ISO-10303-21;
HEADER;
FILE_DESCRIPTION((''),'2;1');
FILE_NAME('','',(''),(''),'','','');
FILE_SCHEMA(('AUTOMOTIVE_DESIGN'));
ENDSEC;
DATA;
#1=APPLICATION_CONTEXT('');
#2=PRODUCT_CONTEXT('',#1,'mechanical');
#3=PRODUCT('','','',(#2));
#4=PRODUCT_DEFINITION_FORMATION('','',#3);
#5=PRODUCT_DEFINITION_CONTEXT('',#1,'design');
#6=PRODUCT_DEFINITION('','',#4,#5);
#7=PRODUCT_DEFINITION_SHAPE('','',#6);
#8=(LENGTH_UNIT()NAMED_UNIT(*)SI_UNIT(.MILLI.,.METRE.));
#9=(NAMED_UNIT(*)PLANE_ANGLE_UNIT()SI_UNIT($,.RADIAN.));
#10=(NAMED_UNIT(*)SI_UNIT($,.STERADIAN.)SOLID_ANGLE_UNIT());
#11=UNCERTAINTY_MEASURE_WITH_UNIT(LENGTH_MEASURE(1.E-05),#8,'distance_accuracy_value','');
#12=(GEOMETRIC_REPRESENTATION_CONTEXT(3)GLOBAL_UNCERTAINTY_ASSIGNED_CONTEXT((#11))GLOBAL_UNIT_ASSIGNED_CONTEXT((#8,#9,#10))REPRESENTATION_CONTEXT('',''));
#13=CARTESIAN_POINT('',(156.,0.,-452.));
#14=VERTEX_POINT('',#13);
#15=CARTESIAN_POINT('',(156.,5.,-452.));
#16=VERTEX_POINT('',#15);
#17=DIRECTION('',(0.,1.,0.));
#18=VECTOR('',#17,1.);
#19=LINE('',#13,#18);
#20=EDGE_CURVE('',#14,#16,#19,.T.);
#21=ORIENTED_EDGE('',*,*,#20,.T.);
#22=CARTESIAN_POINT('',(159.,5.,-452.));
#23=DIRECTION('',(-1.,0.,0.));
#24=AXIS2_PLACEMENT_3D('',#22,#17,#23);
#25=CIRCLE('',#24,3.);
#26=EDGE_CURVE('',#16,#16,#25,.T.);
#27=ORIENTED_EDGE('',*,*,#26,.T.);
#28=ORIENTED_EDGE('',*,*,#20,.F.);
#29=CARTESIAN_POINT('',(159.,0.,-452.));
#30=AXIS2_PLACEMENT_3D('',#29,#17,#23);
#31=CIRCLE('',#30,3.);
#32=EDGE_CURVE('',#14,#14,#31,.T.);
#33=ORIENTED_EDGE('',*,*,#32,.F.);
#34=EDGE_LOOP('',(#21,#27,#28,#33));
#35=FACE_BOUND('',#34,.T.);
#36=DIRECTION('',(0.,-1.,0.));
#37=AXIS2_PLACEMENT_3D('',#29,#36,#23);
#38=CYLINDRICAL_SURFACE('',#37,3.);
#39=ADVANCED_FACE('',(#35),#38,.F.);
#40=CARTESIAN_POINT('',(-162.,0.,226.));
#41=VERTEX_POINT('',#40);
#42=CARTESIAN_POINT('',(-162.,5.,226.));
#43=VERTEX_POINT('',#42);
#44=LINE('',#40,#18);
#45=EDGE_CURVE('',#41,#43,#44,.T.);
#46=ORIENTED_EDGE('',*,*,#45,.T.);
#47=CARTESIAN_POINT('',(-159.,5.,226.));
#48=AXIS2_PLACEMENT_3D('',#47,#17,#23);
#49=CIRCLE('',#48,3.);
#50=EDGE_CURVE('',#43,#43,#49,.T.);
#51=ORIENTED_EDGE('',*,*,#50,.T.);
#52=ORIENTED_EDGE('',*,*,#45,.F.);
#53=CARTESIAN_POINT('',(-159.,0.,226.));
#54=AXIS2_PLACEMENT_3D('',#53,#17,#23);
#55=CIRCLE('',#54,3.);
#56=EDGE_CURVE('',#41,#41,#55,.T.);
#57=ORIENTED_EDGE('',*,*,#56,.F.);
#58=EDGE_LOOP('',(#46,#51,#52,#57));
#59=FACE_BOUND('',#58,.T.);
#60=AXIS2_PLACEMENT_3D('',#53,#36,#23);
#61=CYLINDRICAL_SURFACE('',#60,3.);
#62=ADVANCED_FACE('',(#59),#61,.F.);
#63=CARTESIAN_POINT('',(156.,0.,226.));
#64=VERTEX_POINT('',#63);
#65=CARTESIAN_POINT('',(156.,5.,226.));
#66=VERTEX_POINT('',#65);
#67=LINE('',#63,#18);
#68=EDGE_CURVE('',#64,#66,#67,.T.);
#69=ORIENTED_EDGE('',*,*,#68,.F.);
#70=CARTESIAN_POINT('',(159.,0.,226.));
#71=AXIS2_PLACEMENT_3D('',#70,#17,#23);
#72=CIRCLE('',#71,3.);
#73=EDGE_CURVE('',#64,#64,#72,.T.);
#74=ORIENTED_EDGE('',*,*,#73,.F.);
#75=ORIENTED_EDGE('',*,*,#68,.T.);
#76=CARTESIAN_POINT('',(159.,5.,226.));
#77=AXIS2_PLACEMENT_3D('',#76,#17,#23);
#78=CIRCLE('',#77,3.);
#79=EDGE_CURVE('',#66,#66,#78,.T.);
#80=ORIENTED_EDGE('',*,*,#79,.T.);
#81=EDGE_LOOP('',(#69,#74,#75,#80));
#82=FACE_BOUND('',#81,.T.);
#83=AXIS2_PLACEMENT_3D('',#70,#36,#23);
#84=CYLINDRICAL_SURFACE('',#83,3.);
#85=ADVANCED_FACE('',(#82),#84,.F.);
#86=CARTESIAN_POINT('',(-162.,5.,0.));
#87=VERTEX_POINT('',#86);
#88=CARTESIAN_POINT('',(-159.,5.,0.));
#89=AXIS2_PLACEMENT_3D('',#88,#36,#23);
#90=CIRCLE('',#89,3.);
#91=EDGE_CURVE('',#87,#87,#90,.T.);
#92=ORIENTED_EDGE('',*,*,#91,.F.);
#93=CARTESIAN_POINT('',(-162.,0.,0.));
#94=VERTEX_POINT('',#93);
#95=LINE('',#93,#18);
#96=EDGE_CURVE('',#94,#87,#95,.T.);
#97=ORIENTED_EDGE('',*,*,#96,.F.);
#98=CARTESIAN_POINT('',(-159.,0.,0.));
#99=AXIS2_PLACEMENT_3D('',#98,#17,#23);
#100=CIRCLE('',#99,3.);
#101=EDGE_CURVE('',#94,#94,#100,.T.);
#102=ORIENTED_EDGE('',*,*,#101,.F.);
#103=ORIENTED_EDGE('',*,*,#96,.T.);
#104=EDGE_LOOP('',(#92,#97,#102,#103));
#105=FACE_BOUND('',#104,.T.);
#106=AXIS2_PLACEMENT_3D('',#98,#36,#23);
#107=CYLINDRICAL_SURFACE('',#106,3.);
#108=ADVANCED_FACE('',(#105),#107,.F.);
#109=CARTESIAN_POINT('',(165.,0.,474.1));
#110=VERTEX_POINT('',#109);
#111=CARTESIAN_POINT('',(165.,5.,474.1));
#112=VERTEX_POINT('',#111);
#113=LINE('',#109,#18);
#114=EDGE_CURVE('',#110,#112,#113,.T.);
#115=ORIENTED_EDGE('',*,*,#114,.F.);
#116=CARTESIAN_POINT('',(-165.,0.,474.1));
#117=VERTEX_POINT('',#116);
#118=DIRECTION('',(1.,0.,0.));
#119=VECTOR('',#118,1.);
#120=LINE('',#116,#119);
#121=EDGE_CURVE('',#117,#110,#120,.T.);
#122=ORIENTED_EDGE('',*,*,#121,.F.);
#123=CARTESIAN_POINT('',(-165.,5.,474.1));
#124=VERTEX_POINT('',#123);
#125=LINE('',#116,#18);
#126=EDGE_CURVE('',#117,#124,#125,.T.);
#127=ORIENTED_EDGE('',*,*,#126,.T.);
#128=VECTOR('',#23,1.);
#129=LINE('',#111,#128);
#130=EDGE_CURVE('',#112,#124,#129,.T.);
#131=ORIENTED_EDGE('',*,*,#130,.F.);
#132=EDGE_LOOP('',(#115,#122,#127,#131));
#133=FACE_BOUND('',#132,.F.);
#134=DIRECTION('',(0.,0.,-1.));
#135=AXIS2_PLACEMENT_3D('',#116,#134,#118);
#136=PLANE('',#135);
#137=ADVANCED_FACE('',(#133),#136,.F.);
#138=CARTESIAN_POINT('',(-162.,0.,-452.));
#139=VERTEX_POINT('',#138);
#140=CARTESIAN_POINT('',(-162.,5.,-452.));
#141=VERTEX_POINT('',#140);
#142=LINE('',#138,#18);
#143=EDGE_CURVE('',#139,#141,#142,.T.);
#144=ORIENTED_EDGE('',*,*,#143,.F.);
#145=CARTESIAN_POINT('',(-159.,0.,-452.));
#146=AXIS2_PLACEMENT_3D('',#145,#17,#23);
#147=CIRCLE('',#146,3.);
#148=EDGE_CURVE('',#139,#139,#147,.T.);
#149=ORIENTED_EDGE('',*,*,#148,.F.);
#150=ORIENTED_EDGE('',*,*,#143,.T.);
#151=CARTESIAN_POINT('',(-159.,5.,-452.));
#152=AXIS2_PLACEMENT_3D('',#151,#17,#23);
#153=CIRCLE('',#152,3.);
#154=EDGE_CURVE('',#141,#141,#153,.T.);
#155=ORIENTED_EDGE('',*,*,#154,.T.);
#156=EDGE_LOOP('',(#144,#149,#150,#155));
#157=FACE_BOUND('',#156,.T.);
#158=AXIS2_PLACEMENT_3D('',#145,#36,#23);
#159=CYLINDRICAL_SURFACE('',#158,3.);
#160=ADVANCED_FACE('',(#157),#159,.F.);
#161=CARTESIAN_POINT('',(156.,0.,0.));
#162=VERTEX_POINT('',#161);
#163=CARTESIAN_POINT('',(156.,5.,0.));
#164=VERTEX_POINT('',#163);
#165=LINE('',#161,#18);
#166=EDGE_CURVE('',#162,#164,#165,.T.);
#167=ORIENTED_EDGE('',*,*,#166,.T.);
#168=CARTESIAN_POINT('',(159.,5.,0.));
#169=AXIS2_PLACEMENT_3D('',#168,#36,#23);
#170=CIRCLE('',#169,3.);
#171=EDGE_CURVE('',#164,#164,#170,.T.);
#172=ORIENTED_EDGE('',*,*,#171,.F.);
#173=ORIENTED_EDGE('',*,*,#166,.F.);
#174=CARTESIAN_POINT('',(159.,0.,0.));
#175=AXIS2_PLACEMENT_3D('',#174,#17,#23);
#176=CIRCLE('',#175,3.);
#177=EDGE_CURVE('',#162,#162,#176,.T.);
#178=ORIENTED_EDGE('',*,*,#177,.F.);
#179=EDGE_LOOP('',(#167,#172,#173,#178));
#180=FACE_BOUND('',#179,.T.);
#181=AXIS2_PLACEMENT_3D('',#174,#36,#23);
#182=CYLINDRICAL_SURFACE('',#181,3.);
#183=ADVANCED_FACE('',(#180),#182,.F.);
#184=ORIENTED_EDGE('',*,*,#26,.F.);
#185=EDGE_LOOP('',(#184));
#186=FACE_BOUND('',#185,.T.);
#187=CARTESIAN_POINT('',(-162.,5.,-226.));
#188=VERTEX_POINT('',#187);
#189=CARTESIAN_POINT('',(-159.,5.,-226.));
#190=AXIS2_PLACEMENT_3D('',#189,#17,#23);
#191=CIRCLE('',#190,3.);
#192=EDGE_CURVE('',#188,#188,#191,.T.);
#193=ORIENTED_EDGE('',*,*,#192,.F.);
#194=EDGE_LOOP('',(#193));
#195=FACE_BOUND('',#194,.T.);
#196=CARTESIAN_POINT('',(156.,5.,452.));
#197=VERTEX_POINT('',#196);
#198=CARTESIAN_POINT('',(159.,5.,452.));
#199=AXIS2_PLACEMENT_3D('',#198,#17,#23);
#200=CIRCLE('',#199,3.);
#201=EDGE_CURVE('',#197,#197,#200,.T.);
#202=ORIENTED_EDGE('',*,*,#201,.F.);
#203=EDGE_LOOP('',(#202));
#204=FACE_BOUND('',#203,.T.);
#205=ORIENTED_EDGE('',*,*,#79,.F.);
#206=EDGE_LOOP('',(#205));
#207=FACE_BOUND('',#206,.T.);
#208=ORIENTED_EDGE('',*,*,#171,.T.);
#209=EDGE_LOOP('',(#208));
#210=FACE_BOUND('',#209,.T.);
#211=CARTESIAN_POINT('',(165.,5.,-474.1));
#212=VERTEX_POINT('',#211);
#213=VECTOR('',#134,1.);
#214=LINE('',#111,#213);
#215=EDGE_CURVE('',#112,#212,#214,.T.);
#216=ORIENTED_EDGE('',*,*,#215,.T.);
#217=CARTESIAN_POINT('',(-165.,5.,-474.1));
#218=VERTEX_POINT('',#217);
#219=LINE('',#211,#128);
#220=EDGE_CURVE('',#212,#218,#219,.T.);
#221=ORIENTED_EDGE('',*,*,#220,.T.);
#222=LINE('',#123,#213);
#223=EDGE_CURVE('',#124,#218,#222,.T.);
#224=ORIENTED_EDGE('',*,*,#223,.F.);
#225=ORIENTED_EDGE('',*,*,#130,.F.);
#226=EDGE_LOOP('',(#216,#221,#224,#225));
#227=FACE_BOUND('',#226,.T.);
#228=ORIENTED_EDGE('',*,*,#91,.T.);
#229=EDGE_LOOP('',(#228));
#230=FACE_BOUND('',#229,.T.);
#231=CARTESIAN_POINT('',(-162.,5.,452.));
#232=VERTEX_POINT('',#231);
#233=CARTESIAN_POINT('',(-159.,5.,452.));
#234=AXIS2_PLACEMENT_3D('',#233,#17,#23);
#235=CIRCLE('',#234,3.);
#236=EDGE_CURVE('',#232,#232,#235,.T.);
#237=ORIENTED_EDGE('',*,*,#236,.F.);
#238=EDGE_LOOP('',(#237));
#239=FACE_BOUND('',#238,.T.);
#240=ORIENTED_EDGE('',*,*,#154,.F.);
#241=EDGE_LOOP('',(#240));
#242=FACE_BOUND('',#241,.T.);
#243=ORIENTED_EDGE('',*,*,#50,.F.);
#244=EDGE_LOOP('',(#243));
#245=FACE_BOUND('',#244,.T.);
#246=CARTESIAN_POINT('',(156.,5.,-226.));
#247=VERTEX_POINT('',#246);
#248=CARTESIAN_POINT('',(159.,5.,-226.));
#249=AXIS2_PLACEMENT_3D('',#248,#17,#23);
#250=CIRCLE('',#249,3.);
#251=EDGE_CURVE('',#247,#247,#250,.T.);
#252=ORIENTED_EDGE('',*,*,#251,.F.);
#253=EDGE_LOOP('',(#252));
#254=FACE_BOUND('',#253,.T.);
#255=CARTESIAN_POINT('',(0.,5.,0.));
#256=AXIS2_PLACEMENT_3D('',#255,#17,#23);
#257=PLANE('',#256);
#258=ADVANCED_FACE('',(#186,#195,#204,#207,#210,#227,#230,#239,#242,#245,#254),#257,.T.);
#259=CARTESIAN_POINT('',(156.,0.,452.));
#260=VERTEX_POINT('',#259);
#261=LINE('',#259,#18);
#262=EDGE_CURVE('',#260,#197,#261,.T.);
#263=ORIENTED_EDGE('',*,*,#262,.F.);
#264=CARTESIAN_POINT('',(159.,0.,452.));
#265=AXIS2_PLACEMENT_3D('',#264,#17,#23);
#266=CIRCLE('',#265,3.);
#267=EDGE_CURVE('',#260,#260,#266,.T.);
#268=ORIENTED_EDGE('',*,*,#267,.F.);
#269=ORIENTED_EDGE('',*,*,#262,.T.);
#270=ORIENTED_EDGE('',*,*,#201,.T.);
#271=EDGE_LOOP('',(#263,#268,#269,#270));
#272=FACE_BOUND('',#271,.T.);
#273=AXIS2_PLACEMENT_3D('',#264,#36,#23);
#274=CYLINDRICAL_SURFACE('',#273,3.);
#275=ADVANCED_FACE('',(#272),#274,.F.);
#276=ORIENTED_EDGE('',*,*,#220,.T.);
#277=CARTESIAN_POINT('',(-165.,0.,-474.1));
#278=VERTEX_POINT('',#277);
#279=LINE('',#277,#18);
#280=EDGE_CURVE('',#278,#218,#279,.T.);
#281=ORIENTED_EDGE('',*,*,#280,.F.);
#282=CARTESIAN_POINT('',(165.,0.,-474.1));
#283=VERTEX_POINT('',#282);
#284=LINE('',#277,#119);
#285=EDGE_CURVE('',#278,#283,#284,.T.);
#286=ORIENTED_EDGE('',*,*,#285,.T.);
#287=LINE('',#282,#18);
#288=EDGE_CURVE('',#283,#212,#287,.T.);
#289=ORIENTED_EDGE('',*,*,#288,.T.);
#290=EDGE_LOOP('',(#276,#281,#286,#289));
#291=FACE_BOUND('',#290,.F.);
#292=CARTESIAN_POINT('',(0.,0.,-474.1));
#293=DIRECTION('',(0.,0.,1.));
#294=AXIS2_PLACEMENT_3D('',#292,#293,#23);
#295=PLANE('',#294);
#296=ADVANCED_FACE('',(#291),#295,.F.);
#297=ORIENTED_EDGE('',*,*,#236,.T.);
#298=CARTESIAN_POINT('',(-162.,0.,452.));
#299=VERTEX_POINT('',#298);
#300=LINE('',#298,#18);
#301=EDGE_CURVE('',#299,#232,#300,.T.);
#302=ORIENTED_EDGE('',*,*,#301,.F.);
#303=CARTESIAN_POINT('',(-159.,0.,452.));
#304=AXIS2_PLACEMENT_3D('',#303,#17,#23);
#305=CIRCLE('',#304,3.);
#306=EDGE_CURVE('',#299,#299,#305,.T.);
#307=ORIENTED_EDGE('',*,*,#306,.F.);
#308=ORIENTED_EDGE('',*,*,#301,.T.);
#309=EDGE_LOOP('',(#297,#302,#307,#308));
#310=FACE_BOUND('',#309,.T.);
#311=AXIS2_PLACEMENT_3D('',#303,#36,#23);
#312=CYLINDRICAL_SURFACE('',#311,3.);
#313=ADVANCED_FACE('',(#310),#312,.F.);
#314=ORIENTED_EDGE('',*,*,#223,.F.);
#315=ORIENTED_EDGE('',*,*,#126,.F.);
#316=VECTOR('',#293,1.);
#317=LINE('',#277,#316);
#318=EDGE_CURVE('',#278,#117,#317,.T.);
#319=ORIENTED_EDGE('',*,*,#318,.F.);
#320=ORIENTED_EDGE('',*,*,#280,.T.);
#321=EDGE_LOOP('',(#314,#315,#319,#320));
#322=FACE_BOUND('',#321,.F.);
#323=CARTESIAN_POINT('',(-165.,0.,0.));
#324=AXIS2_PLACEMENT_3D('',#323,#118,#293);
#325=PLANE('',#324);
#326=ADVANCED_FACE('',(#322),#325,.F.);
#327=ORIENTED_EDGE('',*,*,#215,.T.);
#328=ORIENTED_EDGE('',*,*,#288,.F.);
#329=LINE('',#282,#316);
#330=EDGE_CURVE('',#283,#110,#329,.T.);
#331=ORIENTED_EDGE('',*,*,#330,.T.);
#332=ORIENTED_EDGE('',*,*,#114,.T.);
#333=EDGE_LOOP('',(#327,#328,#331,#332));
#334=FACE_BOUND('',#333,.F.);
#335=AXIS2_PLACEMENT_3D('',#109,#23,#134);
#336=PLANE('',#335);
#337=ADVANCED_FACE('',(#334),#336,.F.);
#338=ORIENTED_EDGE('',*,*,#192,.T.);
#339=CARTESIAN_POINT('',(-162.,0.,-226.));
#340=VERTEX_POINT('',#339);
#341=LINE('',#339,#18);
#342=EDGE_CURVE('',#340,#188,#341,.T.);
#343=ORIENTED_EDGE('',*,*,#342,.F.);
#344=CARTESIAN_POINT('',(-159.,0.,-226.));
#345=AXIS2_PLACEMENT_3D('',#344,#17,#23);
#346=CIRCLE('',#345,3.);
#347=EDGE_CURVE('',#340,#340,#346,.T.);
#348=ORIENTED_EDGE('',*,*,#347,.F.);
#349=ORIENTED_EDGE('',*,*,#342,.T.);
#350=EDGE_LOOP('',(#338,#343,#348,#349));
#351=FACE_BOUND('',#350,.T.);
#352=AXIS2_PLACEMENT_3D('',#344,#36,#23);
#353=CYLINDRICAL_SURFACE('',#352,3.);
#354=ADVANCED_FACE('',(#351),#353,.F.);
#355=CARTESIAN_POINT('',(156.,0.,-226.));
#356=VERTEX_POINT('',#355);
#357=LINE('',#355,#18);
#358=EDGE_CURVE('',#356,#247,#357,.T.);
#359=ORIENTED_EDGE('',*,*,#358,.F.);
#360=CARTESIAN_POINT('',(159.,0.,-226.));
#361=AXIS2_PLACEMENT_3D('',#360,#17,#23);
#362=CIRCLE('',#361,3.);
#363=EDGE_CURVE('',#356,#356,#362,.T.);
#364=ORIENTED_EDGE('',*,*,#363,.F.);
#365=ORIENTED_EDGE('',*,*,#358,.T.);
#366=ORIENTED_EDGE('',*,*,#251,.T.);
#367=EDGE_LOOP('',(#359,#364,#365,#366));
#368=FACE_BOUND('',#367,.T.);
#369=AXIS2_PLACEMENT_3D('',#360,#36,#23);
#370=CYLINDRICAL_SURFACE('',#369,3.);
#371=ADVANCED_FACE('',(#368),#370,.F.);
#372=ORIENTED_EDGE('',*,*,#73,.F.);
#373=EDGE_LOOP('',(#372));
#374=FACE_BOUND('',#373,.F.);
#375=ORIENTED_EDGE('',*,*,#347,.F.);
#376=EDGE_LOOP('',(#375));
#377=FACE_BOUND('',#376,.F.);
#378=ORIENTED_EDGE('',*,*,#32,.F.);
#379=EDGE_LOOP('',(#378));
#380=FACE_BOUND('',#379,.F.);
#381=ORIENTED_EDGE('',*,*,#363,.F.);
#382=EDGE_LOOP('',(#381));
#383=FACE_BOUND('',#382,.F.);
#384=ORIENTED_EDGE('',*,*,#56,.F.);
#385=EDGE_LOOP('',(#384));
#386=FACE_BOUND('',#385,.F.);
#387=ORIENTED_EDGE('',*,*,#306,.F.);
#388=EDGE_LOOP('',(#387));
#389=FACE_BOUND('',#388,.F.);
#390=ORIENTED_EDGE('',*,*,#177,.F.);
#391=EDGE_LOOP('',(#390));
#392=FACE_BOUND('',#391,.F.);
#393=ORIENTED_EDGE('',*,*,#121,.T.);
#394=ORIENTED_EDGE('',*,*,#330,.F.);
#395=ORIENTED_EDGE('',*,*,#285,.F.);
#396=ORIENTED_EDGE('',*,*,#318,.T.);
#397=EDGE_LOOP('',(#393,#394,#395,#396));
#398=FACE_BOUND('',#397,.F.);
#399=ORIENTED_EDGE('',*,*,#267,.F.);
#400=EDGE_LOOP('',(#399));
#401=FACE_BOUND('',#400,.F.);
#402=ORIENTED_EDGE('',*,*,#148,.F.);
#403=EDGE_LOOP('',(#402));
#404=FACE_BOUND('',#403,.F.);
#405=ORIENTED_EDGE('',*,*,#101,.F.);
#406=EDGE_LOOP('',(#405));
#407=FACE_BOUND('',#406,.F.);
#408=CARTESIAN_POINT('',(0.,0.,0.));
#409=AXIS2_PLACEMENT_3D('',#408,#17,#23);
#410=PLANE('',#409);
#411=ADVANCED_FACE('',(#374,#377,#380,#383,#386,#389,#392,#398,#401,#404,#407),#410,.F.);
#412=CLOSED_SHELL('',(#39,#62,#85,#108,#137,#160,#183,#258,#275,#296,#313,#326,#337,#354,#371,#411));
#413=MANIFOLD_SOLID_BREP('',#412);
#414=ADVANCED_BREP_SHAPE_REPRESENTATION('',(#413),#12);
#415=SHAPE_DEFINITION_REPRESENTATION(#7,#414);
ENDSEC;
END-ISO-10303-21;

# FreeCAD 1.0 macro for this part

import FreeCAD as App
import Part
import Sketcher
from FreeCAD import Vector
Q = App.Units.Quantity

doc = App.newDocument("Part")
params = doc.addObject("Spreadsheet::Sheet", "Params")
for row, (alias, value) in enumerate([
    ("sketch1_diameter", "6 mm"),
    ("sketch1_width", "330 mm"),
    ("sketch1_height", "948.2 mm"),
    ("pad1_length", "5 mm"),
], start=1):
    params.set(f"A{row}", alias)
    params.set(f"B{row}", "=" + value)
    params.setAlias(f"B{row}", alias)

body = doc.addObject("PartDesign::Body", "Body")

# Sketch on XZ plane
sketch1 = body.newObject("Sketcher::SketchObject", "Sketch")
sketch1.AttachmentSupport = (doc.getObject("XZ_Plane"), [""])
sketch1.MapMode = "FlatFace"
sketch1.addGeometry([
    Part.LineSegment(Vector(-165, 474.1, 0), Vector(165, 474.1, 0)),  # 0
    Part.LineSegment(Vector(165, 474.1, 0), Vector(165, -474.1, 0)),  # 1
    Part.LineSegment(Vector(165, -474.1, 0), Vector(-165, -474.1, 0)),  # 2
    Part.LineSegment(Vector(-165, -474.1, 0), Vector(-165, 474.1, 0)),  # 3
    Part.Circle(Vector(-159, 0, 0), Vector(0, 0, 1), 3),  # 4
    Part.Circle(Vector(-159, 226, 0), Vector(0, 0, 1), 3),  # 5
    Part.Circle(Vector(-159, 452, 0), Vector(0, 0, 1), 3),  # 6
    Part.Circle(Vector(-159, -452, 0), Vector(0, 0, 1), 3),  # 7
    Part.Circle(Vector(-159, -226, 0), Vector(0, 0, 1), 3),  # 8
    Part.Circle(Vector(159, 452, 0), Vector(0, 0, 1), 3),  # 9
    Part.Circle(Vector(159, 0, 0), Vector(0, 0, 1), 3),  # 10
    Part.Circle(Vector(159, 226, 0), Vector(0, 0, 1), 3),  # 11
    Part.Circle(Vector(159, -226, 0), Vector(0, 0, 1), 3),  # 12
    Part.Circle(Vector(159, -452, 0), Vector(0, 0, 1), 3),  # 13
], False)
sketch1.addConstraint([
    Sketcher.Constraint("Coincident", 0, 2, 1, 1),
    Sketcher.Constraint("Coincident", 1, 2, 2, 1),
    Sketcher.Constraint("Coincident", 2, 2, 3, 1),
    Sketcher.Constraint("Coincident", 3, 2, 0, 1),
    Sketcher.Constraint("Horizontal", 0),
    Sketcher.Constraint("Vertical", 1),
    Sketcher.Constraint("Horizontal", 2),
    Sketcher.Constraint("Vertical", 3),
    Sketcher.Constraint("Equal", 4, 5),
    Sketcher.Constraint("Equal", 5, 6),
    Sketcher.Constraint("Equal", 6, 7),
    Sketcher.Constraint("Equal", 7, 8),
    Sketcher.Constraint("Equal", 8, 9),
    Sketcher.Constraint("Equal", 9, 10),
    Sketcher.Constraint("Equal", 10, 11),
    Sketcher.Constraint("Equal", 11, 12),
    Sketcher.Constraint("Equal", 12, 13),
    Sketcher.Constraint("Symmetric", 7, 3, 9, 3, -1, 1),
    Sketcher.Constraint("Symmetric", 4, 3, 10, 3, -1, 1),
    Sketcher.Constraint("Symmetric", 8, 3, 11, 3, -1, 1),
    Sketcher.Constraint("Symmetric", 5, 3, 12, 3, -1, 1),
    Sketcher.Constraint("Symmetric", 6, 3, 13, 3, -1, 1),
    Sketcher.Constraint("Symmetric", 0, 2, 2, 2, -1, 1),
    Sketcher.Constraint("Symmetric", 6, 3, 9, 3, -2),
    Sketcher.Constraint("Symmetric", 5, 3, 11, 3, -2),
    Sketcher.Constraint("PointOnObject", 4, 3, -1),
    Sketcher.Constraint("Vertical", 4, 3, 5, 3),
    Sketcher.Constraint("Vertical", 5, 3, 6, 3),
    Sketcher.Constraint("Diameter", 4, Q("6 mm")),
    Sketcher.Constraint("DistanceX", 0, 1, 0, 2, Q("330 mm")),
    Sketcher.Constraint("DistanceY", 1, 2, 1, 1, Q("948.2 mm")),
    Sketcher.Constraint("DistanceY", -1, 1, 5, 3, Q("226 mm")),
    Sketcher.Constraint("DistanceY", 5, 3, 6, 3, Q("226 mm")),
    Sketcher.Constraint("DistanceX", 9, 3, 0, 2, Q("6 mm")),
])
sketch1.setExpression("Constraints[28]", "Params.sketch1_diameter")
sketch1.setExpression("Constraints[29]", "Params.sketch1_width")
sketch1.setExpression("Constraints[30]", "Params.sketch1_height")
pad1 = body.newObject("PartDesign::Pad", "Pad")
pad1.Profile = sketch1
pad1.setExpression("Length", "Params.pad1_length")
pad1.Reversed = True

doc.recompute()
